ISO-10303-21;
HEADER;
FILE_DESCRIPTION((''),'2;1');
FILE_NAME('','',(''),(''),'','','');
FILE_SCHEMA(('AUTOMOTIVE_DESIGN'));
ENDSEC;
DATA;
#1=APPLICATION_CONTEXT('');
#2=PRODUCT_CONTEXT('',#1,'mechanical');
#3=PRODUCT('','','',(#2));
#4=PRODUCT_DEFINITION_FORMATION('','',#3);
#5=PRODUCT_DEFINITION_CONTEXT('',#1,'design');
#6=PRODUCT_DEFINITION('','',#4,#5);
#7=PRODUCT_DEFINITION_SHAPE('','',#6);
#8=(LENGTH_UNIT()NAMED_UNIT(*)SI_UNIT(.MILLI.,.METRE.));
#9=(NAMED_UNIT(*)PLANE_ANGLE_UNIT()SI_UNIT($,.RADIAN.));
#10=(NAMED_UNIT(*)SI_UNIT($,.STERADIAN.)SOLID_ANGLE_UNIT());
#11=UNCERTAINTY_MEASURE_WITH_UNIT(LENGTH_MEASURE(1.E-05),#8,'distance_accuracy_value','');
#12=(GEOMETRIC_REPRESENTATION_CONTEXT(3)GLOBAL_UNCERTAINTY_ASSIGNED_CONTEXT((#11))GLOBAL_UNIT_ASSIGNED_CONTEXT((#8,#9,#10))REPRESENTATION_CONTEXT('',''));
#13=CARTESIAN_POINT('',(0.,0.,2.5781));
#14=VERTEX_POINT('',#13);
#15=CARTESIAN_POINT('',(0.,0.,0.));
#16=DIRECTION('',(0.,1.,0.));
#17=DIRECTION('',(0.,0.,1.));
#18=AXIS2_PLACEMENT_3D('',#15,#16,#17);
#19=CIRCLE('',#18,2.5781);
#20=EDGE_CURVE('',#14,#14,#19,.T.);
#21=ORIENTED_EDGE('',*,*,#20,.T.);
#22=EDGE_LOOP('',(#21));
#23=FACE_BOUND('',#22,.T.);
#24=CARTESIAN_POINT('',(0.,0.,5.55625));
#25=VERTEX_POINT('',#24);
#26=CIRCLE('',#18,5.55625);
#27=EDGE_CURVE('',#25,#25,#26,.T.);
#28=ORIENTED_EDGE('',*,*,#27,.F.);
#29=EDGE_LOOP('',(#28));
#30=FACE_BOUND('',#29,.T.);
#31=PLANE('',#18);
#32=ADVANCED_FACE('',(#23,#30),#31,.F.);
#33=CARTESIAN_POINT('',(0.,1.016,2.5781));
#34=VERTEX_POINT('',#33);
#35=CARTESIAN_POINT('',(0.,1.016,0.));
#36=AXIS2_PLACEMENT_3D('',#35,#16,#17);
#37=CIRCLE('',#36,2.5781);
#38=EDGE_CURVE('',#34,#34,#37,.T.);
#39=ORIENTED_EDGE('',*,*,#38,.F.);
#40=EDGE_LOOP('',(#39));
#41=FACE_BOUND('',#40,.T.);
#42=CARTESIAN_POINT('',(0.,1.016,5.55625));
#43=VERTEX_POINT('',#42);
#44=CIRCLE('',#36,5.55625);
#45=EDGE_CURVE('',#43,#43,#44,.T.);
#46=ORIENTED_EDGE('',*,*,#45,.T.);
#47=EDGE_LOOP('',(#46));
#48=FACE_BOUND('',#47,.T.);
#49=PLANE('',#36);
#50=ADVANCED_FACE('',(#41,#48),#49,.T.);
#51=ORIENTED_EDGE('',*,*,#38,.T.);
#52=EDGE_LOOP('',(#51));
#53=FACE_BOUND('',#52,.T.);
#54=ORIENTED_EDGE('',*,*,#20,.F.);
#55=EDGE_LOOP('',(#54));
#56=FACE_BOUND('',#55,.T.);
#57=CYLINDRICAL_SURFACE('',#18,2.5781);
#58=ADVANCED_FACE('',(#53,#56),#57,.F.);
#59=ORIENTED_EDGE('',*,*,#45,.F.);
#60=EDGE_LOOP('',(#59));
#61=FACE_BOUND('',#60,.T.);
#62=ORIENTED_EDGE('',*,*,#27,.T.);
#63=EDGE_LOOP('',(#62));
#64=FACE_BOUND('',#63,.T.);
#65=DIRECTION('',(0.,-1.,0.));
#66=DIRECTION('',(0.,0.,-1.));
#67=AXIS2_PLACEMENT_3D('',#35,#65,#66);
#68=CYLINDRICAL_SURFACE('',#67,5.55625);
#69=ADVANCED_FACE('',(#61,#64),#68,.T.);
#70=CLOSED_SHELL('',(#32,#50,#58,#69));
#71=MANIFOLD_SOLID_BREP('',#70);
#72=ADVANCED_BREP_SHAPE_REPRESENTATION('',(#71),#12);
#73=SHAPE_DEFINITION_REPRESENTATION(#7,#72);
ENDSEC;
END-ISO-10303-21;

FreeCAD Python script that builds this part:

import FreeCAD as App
import Part
import Sketcher
from FreeCAD import Vector
Q = App.Units.Quantity

doc = App.newDocument("Part")
params = doc.addObject("Spreadsheet::Sheet", "Params")
for row, (alias, value) in enumerate([
    ("sketch1_diameter", "0.4375 in"),
    ("pad1_length", "0.04 in"),
    ("sketch2_diameter", "0.203 in"),
], start=1):
    params.set(f"A{row}", alias)
    params.set(f"B{row}", "=" + value)
    params.setAlias(f"B{row}", alias)

body = doc.addObject("PartDesign::Body", "Body")

# Sketch on XZ plane
sketch1 = doc.addObject("Sketcher::SketchObject", "Sketch")
body.addObject(sketch1)
sketch1.AttachmentSupport = (doc.XZ_Plane, [""])
sketch1.MapMode = "FlatFace"
sketch1.addGeometry(Part.Circle(Vector(0, 0, 0), Vector(0, 0, 1), 6), False)
sketch1.addConstraint(Sketcher.Constraint("Coincident", 0, 3, -1, 1))
sketch1.addConstraint(Sketcher.Constraint("Diameter", 0, Q("0.4375 in")))
sketch1.setExpression("Constraints[1]", "Params.sketch1_diameter")
pad1 = doc.addObject("PartDesign::Pad", "Pad")
body.addObject(pad1)
pad1.Profile = sketch1
pad1.setExpression("Length", "Params.pad1_length")
pad1.Reversed = True

# Sketch on XZ plane
sketch2 = doc.addObject("Sketcher::SketchObject", "Sketch001")
body.addObject(sketch2)
sketch2.AttachmentSupport = (doc.XZ_Plane, [""])
sketch2.MapMode = "FlatFace"
sketch2.AttachmentOffset = App.Placement(Vector(0, 0, -0.04 * 25.4), App.Rotation())
sketch2.addGeometry(Part.Circle(Vector(0, 0, 0), Vector(0, 0, 1), 2.6), False)
sketch2.addConstraint(Sketcher.Constraint("Coincident", 0, 3, -1, 1))
sketch2.addConstraint(Sketcher.Constraint("Diameter", 0, Q("0.203 in")))
sketch2.setExpression("Constraints[1]", "Params.sketch2_diameter")
pocket1 = doc.addObject("PartDesign::Pocket", "Pocket")
body.addObject(pocket1)
pocket1.Profile = sketch2
pocket1.Type = "ThroughAll"
pocket1.Reversed = True

doc.recompute()
